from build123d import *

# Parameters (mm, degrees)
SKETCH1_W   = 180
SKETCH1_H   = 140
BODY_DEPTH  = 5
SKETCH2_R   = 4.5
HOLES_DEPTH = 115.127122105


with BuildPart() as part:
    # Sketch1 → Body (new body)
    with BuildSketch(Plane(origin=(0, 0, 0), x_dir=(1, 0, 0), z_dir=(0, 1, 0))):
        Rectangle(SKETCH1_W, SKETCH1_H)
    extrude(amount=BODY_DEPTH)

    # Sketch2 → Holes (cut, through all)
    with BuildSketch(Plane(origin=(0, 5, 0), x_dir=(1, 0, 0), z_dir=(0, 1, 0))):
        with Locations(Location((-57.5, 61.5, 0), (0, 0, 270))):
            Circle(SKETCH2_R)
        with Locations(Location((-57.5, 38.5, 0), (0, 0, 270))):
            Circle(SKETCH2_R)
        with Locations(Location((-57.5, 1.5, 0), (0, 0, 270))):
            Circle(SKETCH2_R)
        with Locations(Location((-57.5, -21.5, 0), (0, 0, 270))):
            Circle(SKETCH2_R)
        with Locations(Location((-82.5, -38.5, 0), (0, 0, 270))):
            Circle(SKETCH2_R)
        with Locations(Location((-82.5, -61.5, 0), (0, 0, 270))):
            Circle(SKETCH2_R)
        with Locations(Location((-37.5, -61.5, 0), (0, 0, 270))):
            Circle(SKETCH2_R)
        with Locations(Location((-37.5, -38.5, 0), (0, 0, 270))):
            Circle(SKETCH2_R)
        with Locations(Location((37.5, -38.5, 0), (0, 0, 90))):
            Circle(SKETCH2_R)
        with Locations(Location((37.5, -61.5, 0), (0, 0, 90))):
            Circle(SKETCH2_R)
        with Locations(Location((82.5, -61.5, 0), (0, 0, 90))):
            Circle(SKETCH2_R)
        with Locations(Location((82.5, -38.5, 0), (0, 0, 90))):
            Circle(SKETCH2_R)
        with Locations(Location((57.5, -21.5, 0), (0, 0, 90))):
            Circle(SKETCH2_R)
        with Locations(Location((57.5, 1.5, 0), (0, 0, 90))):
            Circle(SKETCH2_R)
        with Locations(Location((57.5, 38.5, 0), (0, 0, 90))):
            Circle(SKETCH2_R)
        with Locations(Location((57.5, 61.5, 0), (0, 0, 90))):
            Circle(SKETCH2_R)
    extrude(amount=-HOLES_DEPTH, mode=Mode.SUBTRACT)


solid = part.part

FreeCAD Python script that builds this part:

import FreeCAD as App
import Part
import Sketcher
from FreeCAD import Vector

doc = App.newDocument("Part")
params = doc.addObject("Spreadsheet::Sheet", "Params")
for row, (alias, value) in enumerate([
    ("sketch1_width", "180 mm"),
    ("sketch1_height", "140 mm"),
    ("pad1_length", "5 mm"),
    ("sketch2_diameter", "9 mm"),
], start=1):
    params.set(f"A{row}", alias)
    params.set(f"B{row}", "=" + value)
    params.setAlias(f"B{row}", alias)

body = doc.addObject("PartDesign::Body", "Body")

# Sketch on XZ plane
sketch1 = body.newObject("Sketcher::SketchObject", "Sketch")
sketch1.AttachmentSupport = (doc.getObject("XZ_Plane"), [""])
sketch1.MapMode = "FlatFace"
sketch1.addGeometry([
    Part.LineSegment(Vector(-90, -70, 0), Vector(-90, 70, 0)),
    Part.LineSegment(Vector(-90, 70, 0), Vector(90, 70, 0)),
    Part.LineSegment(Vector(90, 70, 0), Vector(90, -70, 0)),
    Part.LineSegment(Vector(90, -70, 0), Vector(-90, -70, 0)),
], False)
sketch1.addConstraint([
    Sketcher.Constraint("Coincident", 0, 2, 1, 1),
    Sketcher.Constraint("Coincident", 1, 2, 2, 1),
    Sketcher.Constraint("Coincident", 2, 2, 3, 1),
    Sketcher.Constraint("Coincident", 3, 2, 0, 1),
    Sketcher.Constraint("Vertical", 0),
    Sketcher.Constraint("Horizontal", 1),
    Sketcher.Constraint("Vertical", 2),
    Sketcher.Constraint("Horizontal", 3),
    Sketcher.Constraint("Symmetric", 0, 2, 2, 2, -1, 1),
    Sketcher.Constraint("DistanceX", 1, 1, 1, 2, 180.0),
    Sketcher.Constraint("DistanceY", 0, 1, 0, 2, 140.0),
])
sketch1.setExpression("Constraints[9]", "Params.sketch1_width")
sketch1.setExpression("Constraints[10]", "Params.sketch1_height")
pad1 = body.newObject("PartDesign::Pad", "Pad")
pad1.Profile = sketch1
pad1.setExpression("Length", "Params.pad1_length")
pad1.Reversed = True

# Sketch on XZ plane
sketch2 = body.newObject("Sketcher::SketchObject", "Sketch001")
sketch2.AttachmentSupport = (doc.getObject("XZ_Plane"), [""])
sketch2.MapMode = "FlatFace"
sketch2.AttachmentOffset = App.Placement(Vector(0, 0, -5), App.Rotation())
sketch2.addGeometry([
    Part.Circle(Vector(-57.5, -61.5, 0), Vector(0, 0, 1), 4.5),  # 0
    Part.Circle(Vector(-57.5, -38.5, 0), Vector(0, 0, 1), 4.5),  # 1
    Part.Circle(Vector(-57.5, -1.5, 0), Vector(0, 0, 1), 4.5),  # 2
    Part.Circle(Vector(-57.5, 21.5, 0), Vector(0, 0, 1), 4.5),  # 3
    Part.Circle(Vector(-82.5, 38.5, 0), Vector(0, 0, 1), 4.5),  # 4
    Part.Circle(Vector(-82.5, 61.5, 0), Vector(0, 0, 1), 4.5),  # 5
    Part.Circle(Vector(-37.5, 61.5, 0), Vector(0, 0, 1), 4.5),  # 6
    Part.Circle(Vector(-37.5, 38.5, 0), Vector(0, 0, 1), 4.5),  # 7
    Part.Circle(Vector(37.5, 38.5, 0), Vector(0, 0, 1), 4.5),  # 8
    Part.Circle(Vector(37.5, 61.5, 0), Vector(0, 0, 1), 4.5),  # 9
    Part.Circle(Vector(82.5, 61.5, 0), Vector(0, 0, 1), 4.5),  # 10
    Part.Circle(Vector(82.5, 38.5, 0), Vector(0, 0, 1), 4.5),  # 11
    Part.Circle(Vector(57.5, 21.5, 0), Vector(0, 0, 1), 4.5),  # 12
    Part.Circle(Vector(57.5, -1.5, 0), Vector(0, 0, 1), 4.5),  # 13
    Part.Circle(Vector(57.5, -38.5, 0), Vector(0, 0, 1), 4.5),  # 14
    Part.Circle(Vector(57.5, -61.5, 0), Vector(0, 0, 1), 4.5),  # 15
], False)
sketch2.addConstraint([
    Sketcher.Constraint("Equal", 0, 1),
    Sketcher.Constraint("Equal", 1, 2),
    Sketcher.Constraint("Equal", 2, 3),
    Sketcher.Constraint("Equal", 3, 4),
    Sketcher.Constraint("Equal", 4, 5),
    Sketcher.Constraint("Equal", 5, 6),
    Sketcher.Constraint("Equal", 6, 7),
    Sketcher.Constraint("Equal", 7, 8),
    Sketcher.Constraint("Equal", 8, 9),
    Sketcher.Constraint("Equal", 9, 10),
    Sketcher.Constraint("Equal", 10, 11),
    Sketcher.Constraint("Equal", 11, 12),
    Sketcher.Constraint("Equal", 12, 13),
    Sketcher.Constraint("Equal", 13, 14),
    Sketcher.Constraint("Equal", 14, 15),
    Sketcher.Constraint("Symmetric", 7, 3, 8, 3, -2),
    Sketcher.Constraint("Symmetric", 6, 3, 9, 3, -2),
    Sketcher.Constraint("Symmetric", 5, 3, 10, 3, -2),
    Sketcher.Constraint("Symmetric", 4, 3, 11, 3, -2),
    Sketcher.Constraint("Symmetric", 3, 3, 12, 3, -2),
    Sketcher.Constraint("Symmetric", 2, 3, 13, 3, -2),
    Sketcher.Constraint("Symmetric", 1, 3, 14, 3, -2),
    Sketcher.Constraint("Symmetric", 0, 3, 15, 3, -2),
    Sketcher.Constraint("Horizontal", 5, 3, 6, 3),
    Sketcher.Constraint("Horizontal", 4, 3, 7, 3),
    Sketcher.Constraint("Vertical", 0, 3, 1, 3),
    Sketcher.Constraint("Vertical", 1, 3, 2, 3),
    Sketcher.Constraint("Vertical", 2, 3, 3, 3),
    Sketcher.Constraint("Vertical", 4, 3, 5, 3),
    Sketcher.Constraint("Vertical", 6, 3, 7, 3),
    Sketcher.Constraint("Diameter", 0, 9.0),
    Sketcher.Constraint("DistanceY", 0, 3, 1, 3, 23.0),
    Sketcher.Constraint("DistanceY", 1, 3, 2, 3, 37.0),
    Sketcher.Constraint("DistanceY", 2, 3, 3, 3, 23.0),
    Sketcher.Constraint("DistanceX", 4, 3, 3, 3, 25.0),
    Sketcher.Constraint("DistanceY", 3, 3, 4, 3, 17.0),
    Sketcher.Constraint("DistanceY", 4, 3, 5, 3, 23.0),
    Sketcher.Constraint("DistanceX", 3, 3, 6, 3, 20.0),
    Sketcher.Constraint("DistanceX", 7, 3, 8, 3, 75.0),
    Sketcher.Constraint("DistanceY", 0, 3, -1, 1, 61.5),
])
sketch2.setExpression("Constraints[30]", "Params.sketch2_diameter")
pocket1 = body.newObject("PartDesign::Pocket", "Pocket")
pocket1.Profile = sketch2
pocket1.Type = "ThroughAll"
pocket1.Reversed = True

doc.recompute()
